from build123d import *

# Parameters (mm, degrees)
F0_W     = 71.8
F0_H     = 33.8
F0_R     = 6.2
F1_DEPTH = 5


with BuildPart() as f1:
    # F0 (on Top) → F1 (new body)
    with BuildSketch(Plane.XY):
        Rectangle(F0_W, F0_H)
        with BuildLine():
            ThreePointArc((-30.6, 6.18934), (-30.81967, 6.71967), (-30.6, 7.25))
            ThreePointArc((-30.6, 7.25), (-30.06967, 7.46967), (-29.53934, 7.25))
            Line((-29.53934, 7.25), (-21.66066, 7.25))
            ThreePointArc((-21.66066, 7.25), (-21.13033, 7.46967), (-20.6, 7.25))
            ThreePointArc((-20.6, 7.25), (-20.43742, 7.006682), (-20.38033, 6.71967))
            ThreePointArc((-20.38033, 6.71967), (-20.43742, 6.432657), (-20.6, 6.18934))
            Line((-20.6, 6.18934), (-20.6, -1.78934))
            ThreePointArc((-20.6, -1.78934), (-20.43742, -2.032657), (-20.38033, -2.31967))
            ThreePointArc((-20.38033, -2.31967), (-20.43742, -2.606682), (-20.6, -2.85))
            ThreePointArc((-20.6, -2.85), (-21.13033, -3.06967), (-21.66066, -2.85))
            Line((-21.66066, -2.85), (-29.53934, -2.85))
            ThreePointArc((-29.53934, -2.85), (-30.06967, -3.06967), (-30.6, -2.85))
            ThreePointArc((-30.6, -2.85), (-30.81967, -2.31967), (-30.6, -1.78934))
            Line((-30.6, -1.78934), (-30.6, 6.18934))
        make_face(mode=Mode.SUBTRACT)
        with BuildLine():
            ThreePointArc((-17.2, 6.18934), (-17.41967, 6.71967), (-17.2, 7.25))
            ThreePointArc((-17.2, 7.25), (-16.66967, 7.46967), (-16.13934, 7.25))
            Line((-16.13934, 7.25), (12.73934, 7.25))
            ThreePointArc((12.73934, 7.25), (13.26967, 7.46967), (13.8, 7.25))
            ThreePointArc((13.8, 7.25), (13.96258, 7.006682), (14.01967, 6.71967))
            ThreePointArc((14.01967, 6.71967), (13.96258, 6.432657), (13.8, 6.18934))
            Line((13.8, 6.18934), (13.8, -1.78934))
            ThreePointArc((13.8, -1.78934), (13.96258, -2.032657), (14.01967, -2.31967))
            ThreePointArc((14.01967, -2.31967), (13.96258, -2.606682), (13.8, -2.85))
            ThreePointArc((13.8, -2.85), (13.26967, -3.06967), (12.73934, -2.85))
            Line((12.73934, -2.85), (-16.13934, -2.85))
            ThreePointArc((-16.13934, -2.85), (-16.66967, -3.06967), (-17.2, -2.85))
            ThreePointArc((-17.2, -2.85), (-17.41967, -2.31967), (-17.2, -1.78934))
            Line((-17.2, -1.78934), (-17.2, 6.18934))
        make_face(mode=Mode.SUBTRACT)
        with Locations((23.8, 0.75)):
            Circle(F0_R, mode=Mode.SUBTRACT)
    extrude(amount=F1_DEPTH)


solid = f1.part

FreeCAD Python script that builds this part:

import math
import FreeCAD as App
import Part
import Sketcher

V = App.Vector

doc = App.newDocument("Part")
body = doc.addObject("PartDesign::Body", "Body")

sketch1 = body.newObject("Sketcher::SketchObject", "Sketch")
sketch1.AttachmentSupport = (doc.getObject("XY_Plane"), [""])
sketch1.MapMode = "FlatFace"
sketch1.addGeometry([
    Part.LineSegment(V(-35.9, 16.9, 0), V(-35.9, -16.9, 0)),
    Part.LineSegment(V(-35.9, -16.9, 0), V(35.9, -16.9, 0)),
    Part.LineSegment(V(35.9, -16.9, 0), V(35.9, 16.9, 0)),
    Part.LineSegment(V(35.9, 16.9, 0), V(-35.9, 16.9, 0)),
    Part.Circle(V(23.8, 0.8, 0), V(0, 0, 1), 6.2),
    Part.LineSegment(V(-30.6, -1.8, 0), V(-30.6, 6.2, 0)),
    Part.ArcOfCircle(Part.Circle(V(-30.1, 6.7, 0), V(0, 0, 1), 0.7), math.radians(135), math.radians(225)),
    Part.ArcOfCircle(Part.Circle(V(-30.1, 6.7, 0), V(0, 0, 1), 0.7), math.radians(45), math.radians(135)),
    Part.LineSegment(V(-29.5, 7.2, 0), V(-21.7, 7.2, 0)),
    Part.ArcOfCircle(Part.Circle(V(-21.1, 6.7, 0), V(0, 0, 1), 0.7), math.radians(45), math.radians(135)),
    Part.ArcOfCircle(Part.Circle(V(-21.1, 6.7, 0), V(0, 0, 1), 0.7), math.radians(0), math.radians(45)),
    Part.ArcOfCircle(Part.Circle(V(-21.1, 6.7, 0), V(0, 0, 1), 0.7), math.radians(-45), math.radians(0)),
    Part.LineSegment(V(-20.6, 6.2, 0), V(-20.6, -1.8, 0)),
    Part.ArcOfCircle(Part.Circle(V(-21.1, -2.3, 0), V(0, 0, 1), 0.7), math.radians(0), math.radians(45)),
    Part.ArcOfCircle(Part.Circle(V(-21.1, -2.3, 0), V(0, 0, 1), 0.7), math.radians(-45), math.radians(0)),
    Part.ArcOfCircle(Part.Circle(V(-21.1, -2.3, 0), V(0, 0, 1), 0.7), math.radians(-135), math.radians(-45)),
    Part.LineSegment(V(-21.7, -2.9, 0), V(-29.5, -2.9, 0)),
    Part.ArcOfCircle(Part.Circle(V(-30.1, -2.3, 0), V(0, 0, 1), 0.7), math.radians(-135), math.radians(-45)),
    Part.ArcOfCircle(Part.Circle(V(-30.1, -2.3, 0), V(0, 0, 1), 0.7), math.radians(135), math.radians(225)),
    Part.LineSegment(V(-17.2, -1.8, 0), V(-17.2, 6.2, 0)),
    Part.ArcOfCircle(Part.Circle(V(-16.7, 6.7, 0), V(0, 0, 1), 0.7), math.radians(135), math.radians(225)),
    Part.ArcOfCircle(Part.Circle(V(-16.7, 6.7, 0), V(0, 0, 1), 0.7), math.radians(45), math.radians(135)),
    Part.LineSegment(V(-16.1, 7.2, 0), V(12.7, 7.2, 0)),
    Part.ArcOfCircle(Part.Circle(V(13.3, 6.7, 0), V(0, 0, 1), 0.7), math.radians(45), math.radians(135)),
    Part.ArcOfCircle(Part.Circle(V(13.3, 6.7, 0), V(0, 0, 1), 0.7), math.radians(0), math.radians(45)),
    Part.ArcOfCircle(Part.Circle(V(13.3, 6.7, 0), V(0, 0, 1), 0.7), math.radians(-45), math.radians(0)),
    Part.LineSegment(V(13.8, 6.2, 0), V(13.8, -1.8, 0)),
    Part.ArcOfCircle(Part.Circle(V(13.3, -2.3, 0), V(0, 0, 1), 0.7), math.radians(0), math.radians(45)),
    Part.ArcOfCircle(Part.Circle(V(13.3, -2.3, 0), V(0, 0, 1), 0.7), math.radians(-45), math.radians(0)),
    Part.ArcOfCircle(Part.Circle(V(13.3, -2.3, 0), V(0, 0, 1), 0.7), math.radians(-135), math.radians(-45)),
    Part.LineSegment(V(12.7, -2.9, 0), V(-16.1, -2.9, 0)),
    Part.ArcOfCircle(Part.Circle(V(-16.7, -2.3, 0), V(0, 0, 1), 0.7), math.radians(-135), math.radians(-45)),
    Part.ArcOfCircle(Part.Circle(V(-16.7, -2.3, 0), V(0, 0, 1), 0.7), math.radians(135), math.radians(225)),
], False)
sketch1.addConstraint([
    Sketcher.Constraint("Coincident", 0, 2, 1, 1),
    Sketcher.Constraint("Coincident", 1, 2, 2, 1),
    Sketcher.Constraint("Coincident", 2, 2, 3, 1),
    Sketcher.Constraint("Coincident", 3, 2, 0, 1),
    Sketcher.Constraint("Coincident", 5, 2, 6, 2),
    Sketcher.Constraint("Tangent", 6, 1, 7, 2),
    Sketcher.Constraint("Coincident", 7, 1, 8, 1),
    Sketcher.Constraint("Coincident", 8, 2, 9, 2),
    Sketcher.Constraint("Tangent", 9, 1, 10, 2),
    Sketcher.Constraint("Coincident", 10, 1, 11, 2),
    Sketcher.Constraint("Coincident", 11, 1, 12, 1),
    Sketcher.Constraint("Coincident", 12, 2, 13, 2),
    Sketcher.Constraint("Coincident", 13, 1, 14, 2),
    Sketcher.Constraint("Tangent", 14, 1, 15, 2),
    Sketcher.Constraint("Coincident", 15, 1, 16, 1),
    Sketcher.Constraint("Coincident", 16, 2, 17, 2),
    Sketcher.Constraint("Tangent", 17, 1, 18, 2),
    Sketcher.Constraint("Coincident", 18, 1, 5, 1),
    Sketcher.Constraint("Coincident", 19, 2, 20, 2),
    Sketcher.Constraint("Tangent", 20, 1, 21, 2),
    Sketcher.Constraint("Coincident", 21, 1, 22, 1),
    Sketcher.Constraint("Coincident", 22, 2, 23, 2),
    Sketcher.Constraint("Tangent", 23, 1, 24, 2),
    Sketcher.Constraint("Coincident", 24, 1, 25, 2),
    Sketcher.Constraint("Coincident", 25, 1, 26, 1),
    Sketcher.Constraint("Coincident", 26, 2, 27, 2),
    Sketcher.Constraint("Coincident", 27, 1, 28, 2),
    Sketcher.Constraint("Tangent", 28, 1, 29, 2),
    Sketcher.Constraint("Coincident", 29, 1, 30, 1),
    Sketcher.Constraint("Coincident", 30, 2, 31, 2),
    Sketcher.Constraint("Tangent", 31, 1, 32, 2),
    Sketcher.Constraint("Coincident", 32, 1, 19, 1),
    Sketcher.Constraint("Vertical", 0),
    Sketcher.Constraint("Horizontal", 1),
    Sketcher.Constraint("Vertical", 2),
    Sketcher.Constraint("Horizontal", 3),
    Sketcher.Constraint("Vertical", 5),
    Sketcher.Constraint("Horizontal", 8),
    Sketcher.Constraint("Vertical", 12),
    Sketcher.Constraint("Horizontal", 16),
    Sketcher.Constraint("Vertical", 19),
    Sketcher.Constraint("Horizontal", 22),
    Sketcher.Constraint("Vertical", 26),
    Sketcher.Constraint("Horizontal", 30),
    Sketcher.Constraint("Coincident", 11, 3, 9, 3),
    Sketcher.Constraint("Coincident", 14, 3, 13, 3),
    Sketcher.Constraint("Coincident", 25, 3, 23, 3),
    Sketcher.Constraint("Coincident", 28, 3, 27, 3),
    Sketcher.Constraint("Equal", 6, 7),
    Sketcher.Constraint("Equal", 7, 9),
    Sketcher.Constraint("Equal", 9, 10),
    Sketcher.Constraint("Equal", 11, 13),
    Sketcher.Constraint("Equal", 14, 15),
    Sketcher.Constraint("Equal", 15, 17),
    Sketcher.Constraint("Equal", 17, 18),
    Sketcher.Constraint("Equal", 18, 20),
    Sketcher.Constraint("Equal", 20, 21),
    Sketcher.Constraint("Equal", 21, 23),
    Sketcher.Constraint("Equal", 23, 24),
    Sketcher.Constraint("Equal", 25, 27),
    Sketcher.Constraint("Equal", 28, 29),
    Sketcher.Constraint("Equal", 29, 31),
    Sketcher.Constraint("Equal", 31, 32),
    Sketcher.Constraint("Symmetric", 0, 2, 2, 2, -1, 1),
    Sketcher.Constraint("Horizontal", 7, 3, 9, 3),
    Sketcher.Constraint("Horizontal", 15, 3, 17, 3),
    Sketcher.Constraint("Horizontal", 10, 3, 20, 3),
    Sketcher.Constraint("Horizontal", 21, 3, 23, 3),
    Sketcher.Constraint("Horizontal", 13, 3, 27, 3),
    Sketcher.Constraint("Horizontal", 29, 3, 31, 3),
    Sketcher.Constraint("Horizontal", 6, 1, 7, 1),
    Sketcher.Constraint("Horizontal", 8, 2, 9, 1),
    Sketcher.Constraint("Horizontal", 24, 3, 10, 1),
    Sketcher.Constraint("Horizontal", 5, 2, 11, 1),
    Sketcher.Constraint("Horizontal", 32, 3, 13, 1),
    Sketcher.Constraint("Horizontal", 14, 1, 15, 1),
    Sketcher.Constraint("Horizontal", 16, 2, 17, 1),
    Sketcher.Constraint("Horizontal", 12, 2, 18, 1),
    Sketcher.Constraint("Horizontal", 11, 1, 19, 2),
    Sketcher.Constraint("Horizontal", 9, 1, 20, 1),
    Sketcher.Constraint("Horizontal", 20, 1, 21, 1),
    Sketcher.Constraint("Horizontal", 22, 2, 23, 1),
    Sketcher.Constraint("Horizontal", 10, 1, 24, 1),
    Sketcher.Constraint("Horizontal", 19, 2, 25, 1),
    Sketcher.Constraint("Horizontal", 18, 1, 26, 2),
    Sketcher.Constraint("Horizontal", 13, 1, 27, 1),
    Sketcher.Constraint("Horizontal", 17, 1, 28, 1),
    Sketcher.Constraint("Horizontal", 28, 1, 29, 1),
    Sketcher.Constraint("Horizontal", 30, 2, 31, 1),
    Sketcher.Constraint("Horizontal", 26, 2, 32, 1),
    Sketcher.Constraint("Vertical", 11, 3, 13, 3),
    Sketcher.Constraint("Vertical", 5, 2, 6, 1),
    Sketcher.Constraint("Vertical", 12, 2, 14, 1),
    Sketcher.Constraint("Diameter", 4, 12.4),
    Sketcher.Constraint("Radius", 6, 0.75),
    Sketcher.Constraint("DistanceX", 1, 1, 1, 2, 71.8),
    Sketcher.Constraint("DistanceY", 0, 2, 0, 1, 33.8),
    Sketcher.Constraint("DistanceX", -1, 1, 4, 3, 23.8),
    Sketcher.Constraint("DistanceX", 5, 2, -1, 1, 30.6),
    Sketcher.Constraint("DistanceX", 9, 1, -1, 1, 20.6),
    Sketcher.Constraint("DistanceX", 19, 2, -1, 1, 17.2),
    Sketcher.Constraint("DistanceX", -1, 1, 23, 1, 13.8),
    Sketcher.Constraint("DistanceY", -1, 1, 4, 3, 0.75),
    Sketcher.Constraint("DistanceY", -1, 1, 6, 1, 7.25),
    Sketcher.Constraint("DistanceY", 14, 1, -1, 1, 2.85),
    Sketcher.Constraint("DistanceX", 8, 1, 8, 2, 7.87868),
])
pad1 = body.newObject("PartDesign::Pad", "Pad")
pad1.Profile = sketch1
pad1.Length = 5

doc.recompute()
